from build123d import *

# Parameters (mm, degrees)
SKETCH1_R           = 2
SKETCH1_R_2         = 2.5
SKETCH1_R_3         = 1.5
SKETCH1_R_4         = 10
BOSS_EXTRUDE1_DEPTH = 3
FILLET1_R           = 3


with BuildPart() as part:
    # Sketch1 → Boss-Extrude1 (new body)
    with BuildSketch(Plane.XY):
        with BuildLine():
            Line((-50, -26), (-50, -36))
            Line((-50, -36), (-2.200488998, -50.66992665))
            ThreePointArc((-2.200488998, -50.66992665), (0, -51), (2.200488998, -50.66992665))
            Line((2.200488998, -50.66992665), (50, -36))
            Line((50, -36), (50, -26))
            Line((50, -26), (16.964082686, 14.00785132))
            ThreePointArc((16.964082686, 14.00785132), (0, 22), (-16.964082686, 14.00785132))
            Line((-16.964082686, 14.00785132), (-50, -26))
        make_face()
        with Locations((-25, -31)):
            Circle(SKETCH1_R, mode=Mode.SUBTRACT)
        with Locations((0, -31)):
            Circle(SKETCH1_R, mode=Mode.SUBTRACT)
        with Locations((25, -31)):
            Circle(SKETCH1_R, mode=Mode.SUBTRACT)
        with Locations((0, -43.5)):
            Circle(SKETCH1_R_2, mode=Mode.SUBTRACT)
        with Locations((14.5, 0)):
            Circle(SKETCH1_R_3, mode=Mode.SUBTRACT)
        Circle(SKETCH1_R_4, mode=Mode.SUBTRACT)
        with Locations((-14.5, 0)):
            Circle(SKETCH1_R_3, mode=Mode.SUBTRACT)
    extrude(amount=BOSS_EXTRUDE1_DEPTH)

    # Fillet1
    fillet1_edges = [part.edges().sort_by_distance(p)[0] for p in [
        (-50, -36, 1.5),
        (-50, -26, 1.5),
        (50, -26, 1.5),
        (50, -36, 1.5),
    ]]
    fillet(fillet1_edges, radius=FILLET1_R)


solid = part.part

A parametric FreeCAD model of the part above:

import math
import FreeCAD as App
import Part
import Sketcher
from FreeCAD import Vector
Q = App.Units.Quantity


def edges_at(feature, points):
    """Names of the edges that pass closest to the given points."""
    edges = feature.Shape.Edges
    near = lambda p: min(range(len(edges)), key=lambda i: edges[i].distToShape(Part.Vertex(*p))[0])
    return sorted({f"Edge{near(p) + 1}" for p in points})

doc = App.newDocument("Part")
body = doc.addObject("PartDesign::Body", "Body")

# Sketch on XY plane
sketch1 = body.newObject("Sketcher::SketchObject", "Sketch")
sketch1.AttachmentSupport = (doc.getObject("XY_Plane"), [""])
sketch1.MapMode = "FlatFace"
sketch1.addGeometry([
    Part.LineSegment(Vector(-50, -26, 0), Vector(-50, -36, 0)),  # 0
    Part.LineSegment(Vector(-50, -36, 0), Vector(-2.200489, -50.669927, 0)),  # 1
    Part.ArcOfCircle(Part.Circle(Vector(0, -43.5, 0), Vector(0, 0, 1), 7.5), math.radians(-107.061531), math.radians(-72.938469)),  # 2
    Part.LineSegment(Vector(2.200489, -50.669927, 0), Vector(50, -36, 0)),  # 3
    Part.LineSegment(Vector(50, -36, 0), Vector(50, -26, 0)),  # 4
    Part.LineSegment(Vector(50, -26, 0), Vector(16.964083, 14.007851, 0)),  # 5
    Part.ArcOfCircle(Part.Circle(Vector(0, 0, 0), Vector(0, 0, 1), 22), math.radians(39.547709), math.radians(140.452291)),  # 6
    Part.LineSegment(Vector(-16.964083, 14.007851, 0), Vector(-50, -26, 0)),  # 7
    Part.Circle(Vector(-25, -31, 0), Vector(0, 0, 1), 2),  # 8
    Part.Circle(Vector(0, -43.5, 0), Vector(0, 0, 1), 2.5),  # 9
    Part.Circle(Vector(0, -31, 0), Vector(0, 0, 1), 2),  # 10
    Part.Circle(Vector(25, -31, 0), Vector(0, 0, 1), 2),  # 11
    Part.Circle(Vector(-14.5, 0, 0), Vector(0, 0, 1), 1.5),  # 12
    Part.Circle(Vector(0, 0, 0), Vector(0, 0, 1), 10),  # 13
    Part.Circle(Vector(14.5, 0, 0), Vector(0, 0, 1), 1.5),  # 14
], False)
sketch1.addConstraint([
    Sketcher.Constraint("Coincident", 0, 2, 1, 1),
    Sketcher.Constraint("Tangent", 1, 2, 2, 1),
    Sketcher.Constraint("Tangent", 2, 2, 3, 1),
    Sketcher.Constraint("Coincident", 3, 2, 4, 1),
    Sketcher.Constraint("Coincident", 4, 2, 5, 1),
    Sketcher.Constraint("Tangent", 5, 2, 6, 1),
    Sketcher.Constraint("Tangent", 6, 2, 7, 1),
    Sketcher.Constraint("Coincident", 7, 2, 0, 1),
    Sketcher.Constraint("Vertical", 0),
    Sketcher.Constraint("Vertical", 4),
    Sketcher.Constraint("Coincident", 6, 3, -1, 1),
    Sketcher.Constraint("Coincident", 13, 3, -1, 1),
    Sketcher.Constraint("Coincident", 9, 3, 2, 3),
    Sketcher.Constraint("Equal", 8, 10),
    Sketcher.Constraint("Equal", 10, 11),
    Sketcher.Constraint("Equal", 12, 14),
    Sketcher.Constraint("Symmetric", 12, 3, 14, 3, -1, 1),
    Sketcher.Constraint("Symmetric", 8, 3, 11, 3, -2),
    Sketcher.Constraint("Symmetric", 1, 2, 2, 2, -2),
    Sketcher.Constraint("Symmetric", 4, 2, 7, 2, -2),
    Sketcher.Constraint("PointOnObject", 10, 3, -2),
    Sketcher.Constraint("PointOnObject", 12, 3, -1),
    Sketcher.Constraint("Horizontal", 8, 3, 10, 3),
    Sketcher.Constraint("Diameter", 8, Q("4 mm")),
    Sketcher.Constraint("Diameter", 9, Q("5 mm")),
    Sketcher.Constraint("Diameter", 12, Q("3 mm")),
    Sketcher.Constraint("Diameter", 13, Q("20 mm")),
    Sketcher.Constraint("Radius", 6, Q("22 mm")),
    Sketcher.Constraint("Radius", 2, Q("7.5 mm")),
    Sketcher.Constraint("DistanceY", 0, 2, 0, 1, Q("10 mm")),
    Sketcher.Constraint("Distance", 1, Q("50 mm")),
    Sketcher.Constraint("DistanceX", 8, 3, -1, 1, Q("25 mm")),
    Sketcher.Constraint("DistanceY", 8, 3, -1, 1, Q("31 mm")),
    Sketcher.Constraint("DistanceX", 0, 2, -1, 1, Q("50 mm")),
    Sketcher.Constraint("DistanceY", 0, 2, -1, 1, Q("36 mm")),
    Sketcher.Constraint("DistanceX", 12, 3, 14, 3, Q("29 mm")),
])
pad1 = body.newObject("PartDesign::Pad", "Pad")
pad1.Profile = sketch1
pad1.Length = 3
doc.recompute()

fillet = body.newObject("PartDesign::Fillet", "Fillet")
fillet.Base = (pad1, edges_at(pad1, [
    (-50, -36, 1.5),
    (-50, -26, 1.5),
    (50, -26, 1.5),
    (50, -36, 1.5),
]))
fillet.Radius = 3

doc.recompute()
